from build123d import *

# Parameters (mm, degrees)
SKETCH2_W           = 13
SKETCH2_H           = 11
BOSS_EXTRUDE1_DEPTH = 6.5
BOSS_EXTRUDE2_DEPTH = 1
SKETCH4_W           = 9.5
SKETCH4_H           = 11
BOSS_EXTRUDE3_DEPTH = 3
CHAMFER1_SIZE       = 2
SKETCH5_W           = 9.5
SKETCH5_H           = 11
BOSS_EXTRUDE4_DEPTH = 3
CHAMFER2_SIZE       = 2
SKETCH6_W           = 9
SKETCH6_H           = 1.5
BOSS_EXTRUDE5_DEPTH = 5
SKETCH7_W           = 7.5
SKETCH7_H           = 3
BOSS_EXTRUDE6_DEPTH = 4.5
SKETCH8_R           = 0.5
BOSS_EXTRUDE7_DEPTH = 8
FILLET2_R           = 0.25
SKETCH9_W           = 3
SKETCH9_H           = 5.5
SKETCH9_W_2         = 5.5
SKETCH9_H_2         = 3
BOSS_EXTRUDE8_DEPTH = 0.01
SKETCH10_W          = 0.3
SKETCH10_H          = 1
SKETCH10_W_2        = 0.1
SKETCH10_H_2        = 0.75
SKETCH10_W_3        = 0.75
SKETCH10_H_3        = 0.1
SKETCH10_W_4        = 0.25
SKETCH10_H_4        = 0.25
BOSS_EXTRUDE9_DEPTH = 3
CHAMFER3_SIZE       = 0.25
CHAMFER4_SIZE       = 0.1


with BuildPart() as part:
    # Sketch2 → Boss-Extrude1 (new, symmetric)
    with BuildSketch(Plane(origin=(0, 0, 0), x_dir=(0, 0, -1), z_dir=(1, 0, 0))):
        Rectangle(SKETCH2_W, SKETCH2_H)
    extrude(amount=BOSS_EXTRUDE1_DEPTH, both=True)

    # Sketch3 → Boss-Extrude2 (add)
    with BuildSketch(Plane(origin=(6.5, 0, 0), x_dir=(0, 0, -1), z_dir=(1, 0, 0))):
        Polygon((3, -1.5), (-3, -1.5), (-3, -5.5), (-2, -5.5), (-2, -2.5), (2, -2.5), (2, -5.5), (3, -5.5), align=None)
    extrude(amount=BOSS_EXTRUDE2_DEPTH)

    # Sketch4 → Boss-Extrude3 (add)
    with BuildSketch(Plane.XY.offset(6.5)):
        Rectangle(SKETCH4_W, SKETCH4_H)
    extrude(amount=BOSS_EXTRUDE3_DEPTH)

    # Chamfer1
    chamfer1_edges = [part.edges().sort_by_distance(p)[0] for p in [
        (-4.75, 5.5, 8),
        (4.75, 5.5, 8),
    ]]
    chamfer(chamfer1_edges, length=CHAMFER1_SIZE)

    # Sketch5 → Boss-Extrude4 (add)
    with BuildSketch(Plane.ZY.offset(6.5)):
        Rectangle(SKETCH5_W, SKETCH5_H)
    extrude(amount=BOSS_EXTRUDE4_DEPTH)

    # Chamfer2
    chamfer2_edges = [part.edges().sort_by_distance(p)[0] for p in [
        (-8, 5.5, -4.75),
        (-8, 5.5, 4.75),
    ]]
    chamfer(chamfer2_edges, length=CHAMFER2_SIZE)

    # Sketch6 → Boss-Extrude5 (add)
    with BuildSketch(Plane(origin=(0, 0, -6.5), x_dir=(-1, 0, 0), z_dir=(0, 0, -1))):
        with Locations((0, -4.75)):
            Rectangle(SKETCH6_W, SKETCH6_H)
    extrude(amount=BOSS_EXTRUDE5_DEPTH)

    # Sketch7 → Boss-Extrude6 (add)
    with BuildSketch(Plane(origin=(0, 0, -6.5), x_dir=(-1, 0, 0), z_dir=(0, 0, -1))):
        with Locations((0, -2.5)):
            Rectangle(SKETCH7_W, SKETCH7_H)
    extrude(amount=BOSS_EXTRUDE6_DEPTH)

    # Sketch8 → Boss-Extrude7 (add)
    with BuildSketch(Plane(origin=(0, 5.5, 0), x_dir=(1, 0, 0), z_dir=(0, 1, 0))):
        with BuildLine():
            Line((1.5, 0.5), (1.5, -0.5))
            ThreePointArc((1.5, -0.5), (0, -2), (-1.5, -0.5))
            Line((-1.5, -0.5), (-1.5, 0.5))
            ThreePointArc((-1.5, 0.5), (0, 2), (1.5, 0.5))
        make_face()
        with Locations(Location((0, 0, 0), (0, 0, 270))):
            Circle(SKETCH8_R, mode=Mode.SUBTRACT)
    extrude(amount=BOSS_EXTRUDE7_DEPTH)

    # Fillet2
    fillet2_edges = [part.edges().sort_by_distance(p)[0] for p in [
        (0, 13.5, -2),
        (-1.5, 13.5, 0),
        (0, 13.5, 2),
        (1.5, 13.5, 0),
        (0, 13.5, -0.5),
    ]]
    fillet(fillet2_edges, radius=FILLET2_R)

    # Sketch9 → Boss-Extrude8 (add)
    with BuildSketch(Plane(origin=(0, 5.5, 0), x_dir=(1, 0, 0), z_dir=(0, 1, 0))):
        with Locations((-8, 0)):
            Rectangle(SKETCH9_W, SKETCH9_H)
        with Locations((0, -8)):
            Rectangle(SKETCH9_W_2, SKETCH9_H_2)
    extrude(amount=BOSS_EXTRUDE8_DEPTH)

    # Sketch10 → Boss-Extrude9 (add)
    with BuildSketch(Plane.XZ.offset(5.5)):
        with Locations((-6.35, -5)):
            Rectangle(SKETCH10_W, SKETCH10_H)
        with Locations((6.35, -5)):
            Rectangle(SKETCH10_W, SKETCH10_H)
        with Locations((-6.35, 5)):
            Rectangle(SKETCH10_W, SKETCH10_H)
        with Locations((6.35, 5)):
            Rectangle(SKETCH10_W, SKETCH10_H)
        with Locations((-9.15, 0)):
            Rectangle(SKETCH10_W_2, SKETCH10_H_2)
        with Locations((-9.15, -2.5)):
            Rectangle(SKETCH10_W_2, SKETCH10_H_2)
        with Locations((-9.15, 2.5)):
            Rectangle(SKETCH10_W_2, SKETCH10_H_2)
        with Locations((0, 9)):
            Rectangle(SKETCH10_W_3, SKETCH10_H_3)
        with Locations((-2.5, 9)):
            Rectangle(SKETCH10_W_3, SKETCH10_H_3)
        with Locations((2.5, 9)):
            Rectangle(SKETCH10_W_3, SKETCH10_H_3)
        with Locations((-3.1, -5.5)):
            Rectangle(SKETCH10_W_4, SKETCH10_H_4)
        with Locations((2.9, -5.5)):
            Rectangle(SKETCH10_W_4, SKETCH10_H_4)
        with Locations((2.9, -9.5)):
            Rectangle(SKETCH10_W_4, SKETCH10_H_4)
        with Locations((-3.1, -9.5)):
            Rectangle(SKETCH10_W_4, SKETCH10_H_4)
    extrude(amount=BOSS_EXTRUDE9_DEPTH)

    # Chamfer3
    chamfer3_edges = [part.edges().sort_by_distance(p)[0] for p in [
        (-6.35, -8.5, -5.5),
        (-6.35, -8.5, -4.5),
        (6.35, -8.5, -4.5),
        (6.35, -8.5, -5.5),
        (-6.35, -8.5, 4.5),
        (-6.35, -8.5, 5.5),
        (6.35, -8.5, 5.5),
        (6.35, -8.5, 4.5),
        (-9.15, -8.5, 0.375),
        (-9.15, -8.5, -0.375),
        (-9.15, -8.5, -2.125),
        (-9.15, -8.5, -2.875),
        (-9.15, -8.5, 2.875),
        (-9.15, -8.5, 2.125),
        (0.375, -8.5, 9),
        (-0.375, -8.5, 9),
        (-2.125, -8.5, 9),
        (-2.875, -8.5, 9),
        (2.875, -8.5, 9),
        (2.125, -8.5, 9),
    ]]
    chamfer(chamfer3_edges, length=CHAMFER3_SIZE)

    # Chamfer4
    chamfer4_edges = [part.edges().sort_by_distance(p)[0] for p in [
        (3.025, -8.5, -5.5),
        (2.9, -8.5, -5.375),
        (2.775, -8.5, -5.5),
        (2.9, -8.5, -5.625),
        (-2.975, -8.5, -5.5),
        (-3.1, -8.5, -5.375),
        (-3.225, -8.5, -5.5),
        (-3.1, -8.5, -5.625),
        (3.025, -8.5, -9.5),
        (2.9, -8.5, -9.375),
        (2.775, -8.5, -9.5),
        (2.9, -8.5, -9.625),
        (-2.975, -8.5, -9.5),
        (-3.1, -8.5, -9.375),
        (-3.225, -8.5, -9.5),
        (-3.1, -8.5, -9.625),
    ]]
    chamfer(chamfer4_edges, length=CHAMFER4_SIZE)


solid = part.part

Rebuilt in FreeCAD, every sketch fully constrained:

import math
import FreeCAD as App
import Part
import Sketcher

V = App.Vector


def edges_at(feature, points):
    """Names of the edges that pass closest to the given points."""
    edges = feature.Shape.Edges
    near = lambda p: min(range(len(edges)), key=lambda i: edges[i].distToShape(Part.Vertex(*p))[0])
    return sorted({f"Edge{near(p) + 1}" for p in points})


def add_polygon(sketch, points):
    """Adds a closed chain of lines whose ends are joined by coincident constraints."""
    first, n = sketch.GeometryCount, len(points)
    for a, b in zip(points, points[1:] + points[:1]):
        sketch.addGeometry(Part.LineSegment(App.Vector(*a, 0), App.Vector(*b, 0)), False)
    for i in range(n):
        sketch.addConstraint(Sketcher.Constraint("Coincident", first + i, 2, first + (i + 1) % n, 1))

doc = App.newDocument("Part")
body = doc.addObject("PartDesign::Body", "Body")

# Sketch on YZ plane
sketch1 = body.newObject("Sketcher::SketchObject", "Sketch")
sketch1.AttachmentSupport = (doc.getObject("YZ_Plane"), [""])
sketch1.MapMode = "FlatFace"
add_polygon(sketch1, [(5.5, 6.5), (-5.5, 6.5), (-5.5, -6.5), (5.5, -6.5)])  # lines 0-3
sketch1.addConstraint(Sketcher.Constraint("Horizontal", 0))
sketch1.addConstraint(Sketcher.Constraint("Vertical", 1))
sketch1.addConstraint(Sketcher.Constraint("Horizontal", 2))
sketch1.addConstraint(Sketcher.Constraint("Vertical", 3))
sketch1.addConstraint(Sketcher.Constraint("Symmetric", 0, 2, 2, 2, -1, 1))
sketch1.addConstraint(Sketcher.Constraint("DistanceX", 0, 2, 0, 1, 11.0))
sketch1.addConstraint(Sketcher.Constraint("DistanceY", 1, 2, 1, 1, 13.0))
pad1 = body.newObject("PartDesign::Pad", "Pad")
pad1.Profile = sketch1
pad1.Length = 13
pad1.Midplane = True

# Sketch on YZ plane
sketch2 = body.newObject("Sketcher::SketchObject", "Sketch001")
sketch2.AttachmentSupport = (doc.getObject("YZ_Plane"), [""])
sketch2.MapMode = "FlatFace"
sketch2.AttachmentOffset = App.Placement(V(0, 0, 6.5), App.Rotation())
add_polygon(sketch2, [(-1.5, -3), (-1.5, 3), (-5.5, 3), (-5.5, 2), (-2.5, 2), (-2.5, -2), (-5.5, -2), (-5.5, -3)])  # lines 0-7
sketch2.addConstraint(Sketcher.Constraint("Vertical", 0))
sketch2.addConstraint(Sketcher.Constraint("Horizontal", 1))
sketch2.addConstraint(Sketcher.Constraint("Vertical", 2))
sketch2.addConstraint(Sketcher.Constraint("Horizontal", 3))
sketch2.addConstraint(Sketcher.Constraint("Vertical", 4))
sketch2.addConstraint(Sketcher.Constraint("Horizontal", 5))
sketch2.addConstraint(Sketcher.Constraint("Vertical", 6))
sketch2.addConstraint(Sketcher.Constraint("Horizontal", 7))
sketch2.addConstraint(Sketcher.Constraint("Symmetric", 2, 2, 5, 2, -1))
sketch2.addConstraint(Sketcher.Constraint("Equal", 7, 4))
sketch2.addConstraint(Sketcher.Constraint("Equal", 2, 6))
sketch2.addConstraint(Sketcher.Constraint("DistanceX", 1, 2, 1, 1, 4.0))
sketch2.addConstraint(Sketcher.Constraint("DistanceX", 3, 1, 3, 2, 3.0))
sketch2.addConstraint(Sketcher.Constraint("DistanceY", 0, 1, 0, 2, 6.0))
sketch2.addConstraint(Sketcher.Constraint("DistanceX", 0, 2, -1, 1, 1.5))
pad2 = body.newObject("PartDesign::Pad", "Pad001")
pad2.Profile = sketch2
pad2.Length = 1

# Sketch on XY plane
sketch3 = body.newObject("Sketcher::SketchObject", "Sketch002")
sketch3.AttachmentSupport = (doc.getObject("XY_Plane"), [""])
sketch3.MapMode = "FlatFace"
sketch3.AttachmentOffset = App.Placement(V(0, 0, 6.5), App.Rotation())
add_polygon(sketch3, [(-4.75, 5.5), (-4.75, -5.5), (4.75, -5.5), (4.75, 5.5)])  # lines 0-3
sketch3.addConstraint(Sketcher.Constraint("Vertical", 0))
sketch3.addConstraint(Sketcher.Constraint("Horizontal", 1))
sketch3.addConstraint(Sketcher.Constraint("Vertical", 2))
sketch3.addConstraint(Sketcher.Constraint("Horizontal", 3))
sketch3.addConstraint(Sketcher.Constraint("Symmetric", 0, 2, 2, 2, -1, 1))
sketch3.addConstraint(Sketcher.Constraint("DistanceY", 0, 2, 0, 1, 11.0))
sketch3.addConstraint(Sketcher.Constraint("DistanceX", 1, 1, 1, 2, 9.5))
pad3 = body.newObject("PartDesign::Pad", "Pad002")
pad3.Profile = sketch3
pad3.Length = 3
doc.recompute()

chamfer = body.newObject("PartDesign::Chamfer", "Chamfer")
chamfer.Base = (pad3, edges_at(pad3, [(-4.75, 5.5, 8), (4.75, 5.5, 8)]))
chamfer.Size = 2

# Sketch on YZ plane
sketch4 = body.newObject("Sketcher::SketchObject", "Sketch003")
sketch4.AttachmentSupport = (doc.getObject("YZ_Plane"), [""])
sketch4.MapMode = "FlatFace"
sketch4.AttachmentOffset = App.Placement(V(0, 0, -6.5), App.Rotation())
add_polygon(sketch4, [(5.5, -4.75), (-5.5, -4.75), (-5.5, 4.75), (5.5, 4.75)])  # lines 0-3
sketch4.addConstraint(Sketcher.Constraint("Horizontal", 0))
sketch4.addConstraint(Sketcher.Constraint("Vertical", 1))
sketch4.addConstraint(Sketcher.Constraint("Horizontal", 2))
sketch4.addConstraint(Sketcher.Constraint("Vertical", 3))
sketch4.addConstraint(Sketcher.Constraint("Symmetric", 0, 2, 2, 2, -1, 1))
sketch4.addConstraint(Sketcher.Constraint("DistanceX", 0, 2, 0, 1, 11.0))
sketch4.addConstraint(Sketcher.Constraint("DistanceY", 1, 1, 1, 2, 9.5))
pad4 = body.newObject("PartDesign::Pad", "Pad003")
pad4.Profile = sketch4
pad4.Length = 3
pad4.Reversed = True
doc.recompute()

chamfer2 = body.newObject("PartDesign::Chamfer", "Chamfer001")
chamfer2.Base = (pad4, edges_at(pad4, [(-8, 5.5, -4.75), (-8, 5.5, 4.75)]))
chamfer2.Size = 2

# Sketch on XY plane
sketch5 = body.newObject("Sketcher::SketchObject", "Sketch004")
sketch5.AttachmentSupport = (doc.getObject("XY_Plane"), [""])
sketch5.MapMode = "FlatFace"
sketch5.AttachmentOffset = App.Placement(V(0, 0, -6.5), App.Rotation())
add_polygon(sketch5, [(4.5, -4), (4.5, -5.5), (-4.5, -5.5), (-4.5, -4)])  # lines 0-3
sketch5.addConstraint(Sketcher.Constraint("Vertical", 0))
sketch5.addConstraint(Sketcher.Constraint("Horizontal", 1))
sketch5.addConstraint(Sketcher.Constraint("Vertical", 2))
sketch5.addConstraint(Sketcher.Constraint("Horizontal", 3))
sketch5.addConstraint(Sketcher.Constraint("DistanceX", 1, 2, 1, 1, 9.0))
sketch5.addConstraint(Sketcher.Constraint("DistanceY", 0, 2, 0, 1, 1.5))
sketch5.addConstraint(Sketcher.Constraint("DistanceY", 2, 2, -1, 1, 4.0))
sketch5.addConstraint(Sketcher.Constraint("DistanceX", -1, 1, 0, 2, 4.5))
pad5 = body.newObject("PartDesign::Pad", "Pad004")
pad5.Profile = sketch5
pad5.Length = 5
pad5.Reversed = True

# Sketch on XY plane
sketch6 = body.newObject("Sketcher::SketchObject", "Sketch005")
sketch6.AttachmentSupport = (doc.getObject("XY_Plane"), [""])
sketch6.MapMode = "FlatFace"
sketch6.AttachmentOffset = App.Placement(V(0, 0, -6.5), App.Rotation())
add_polygon(sketch6, [(3.75, -1), (3.75, -4), (-3.75, -4), (-3.75, -1)])  # lines 0-3
sketch6.addConstraint(Sketcher.Constraint("Vertical", 0))
sketch6.addConstraint(Sketcher.Constraint("Horizontal", 1))
sketch6.addConstraint(Sketcher.Constraint("Vertical", 2))
sketch6.addConstraint(Sketcher.Constraint("Horizontal", 3))
sketch6.addConstraint(Sketcher.Constraint("DistanceY", 0, 2, 0, 1, 3.0))
sketch6.addConstraint(Sketcher.Constraint("DistanceX", 1, 2, 1, 1, 7.5))
sketch6.addConstraint(Sketcher.Constraint("DistanceY", 0, 2, -1, 1, 4.0))
sketch6.addConstraint(Sketcher.Constraint("DistanceX", -1, 1, 0, 2, 3.75))
pad6 = body.newObject("PartDesign::Pad", "Pad005")
pad6.Profile = sketch6
pad6.Length = 4.5
pad6.Reversed = True

# Sketch on XZ plane
sketch7 = body.newObject("Sketcher::SketchObject", "Sketch006")
sketch7.AttachmentSupport = (doc.getObject("XZ_Plane"), [""])
sketch7.MapMode = "FlatFace"
sketch7.AttachmentOffset = App.Placement(V(0, 0, -5.5), App.Rotation())
sketch7.addGeometry(Part.LineSegment(V(1.5, 0.5, 0), V(1.5, -0.5, 0)), False)
sketch7.addGeometry(Part.ArcOfCircle(Part.Circle(V(0, -0.5, 0), V(0, 0, 1), 1.5), math.radians(180), math.radians(360)), False)
sketch7.addGeometry(Part.LineSegment(V(-1.5, -0.5, 0), V(-1.5, 0.5, 0)), False)
sketch7.addGeometry(Part.ArcOfCircle(Part.Circle(V(0, 0.5, 0), V(0, 0, 1), 1.5), math.radians(0), math.radians(180)), False)
sketch7.addGeometry(Part.Circle(V(0, 0, 0), V(0, 0, 1), 0.5), False)
sketch7.addConstraint(Sketcher.Constraint("Tangent", 0, 2, 1, 2))
sketch7.addConstraint(Sketcher.Constraint("Tangent", 1, 1, 2, 1))
sketch7.addConstraint(Sketcher.Constraint("Tangent", 2, 2, 3, 2))
sketch7.addConstraint(Sketcher.Constraint("Tangent", 3, 1, 0, 1))
sketch7.addConstraint(Sketcher.Constraint("Vertical", 0))
sketch7.addConstraint(Sketcher.Constraint("Vertical", 2))
sketch7.addConstraint(Sketcher.Constraint("Coincident", 4, 3, -1, 1))
sketch7.addConstraint(Sketcher.Constraint("Symmetric", 1, 3, 3, 3, -1, 1))
sketch7.addConstraint(Sketcher.Constraint("Diameter", 4, 1.0))
sketch7.addConstraint(Sketcher.Constraint("Radius", 1, 1.5))
sketch7.addConstraint(Sketcher.Constraint("DistanceY", 0, 2, 0, 1, 1.0))
pad7 = body.newObject("PartDesign::Pad", "Pad006")
pad7.Profile = sketch7
pad7.Length = 8
pad7.Reversed = True
doc.recompute()

fillet = body.newObject("PartDesign::Fillet", "Fillet")
fillet.Base = (pad7, edges_at(pad7, [
    (0, 13.5, -2),
    (-1.5, 13.5, 0),
    (0, 13.5, 2),
    (1.5, 13.5, 0),
    (0, 13.5, -0.5),
]))
fillet.Radius = 0.25

# Sketch on XZ plane
sketch8 = body.newObject("Sketcher::SketchObject", "Sketch007")
sketch8.AttachmentSupport = (doc.getObject("XZ_Plane"), [""])
sketch8.MapMode = "FlatFace"
sketch8.AttachmentOffset = App.Placement(V(0, 0, -5.5), App.Rotation())
add_polygon(sketch8, [(-9.5, -2.75), (-9.5, 2.75), (-6.5, 2.75), (-6.5, -2.75)])  # lines 0-3
add_polygon(sketch8, [(-2.75, 6.5), (-2.75, 9.5), (2.75, 9.5), (2.75, 6.5)])  # lines 4-7
sketch8.addConstraint(Sketcher.Constraint("Vertical", 0))
sketch8.addConstraint(Sketcher.Constraint("Horizontal", 1))
sketch8.addConstraint(Sketcher.Constraint("Vertical", 2))
sketch8.addConstraint(Sketcher.Constraint("Horizontal", 3))
sketch8.addConstraint(Sketcher.Constraint("Vertical", 4))
sketch8.addConstraint(Sketcher.Constraint("Horizontal", 5))
sketch8.addConstraint(Sketcher.Constraint("Vertical", 6))
sketch8.addConstraint(Sketcher.Constraint("Horizontal", 7))
sketch8.addConstraint(Sketcher.Constraint("Equal", 7, 0))
sketch8.addConstraint(Sketcher.Constraint("Equal", 3, 4))
sketch8.addConstraint(Sketcher.Constraint("DistanceX", 1, 1, 1, 2, 3.0))
sketch8.addConstraint(Sketcher.Constraint("DistanceX", 5, 1, 5, 2, 5.5))
sketch8.addConstraint(Sketcher.Constraint("DistanceX", 0, 2, -1, 1, 9.5))
sketch8.addConstraint(Sketcher.Constraint("DistanceY", -1, 1, 4, 2, 9.5))
sketch8.addConstraint(Sketcher.Constraint("DistanceY", -1, 1, 0, 2, 2.75))
sketch8.addConstraint(Sketcher.Constraint("DistanceX", 4, 2, -1, 1, 2.75))
pad8 = body.newObject("PartDesign::Pad", "Pad007")
pad8.Profile = sketch8
pad8.Length = 0.01
pad8.Reversed = True

# Sketch on XZ plane
sketch9 = body.newObject("Sketcher::SketchObject", "Sketch008")
sketch9.AttachmentSupport = (doc.getObject("XZ_Plane"), [""])
sketch9.MapMode = "FlatFace"
sketch9.AttachmentOffset = App.Placement(V(0, 0, 5.5), App.Rotation())
add_polygon(sketch9, [(-6.5, -4.5), (-6.5, -5.5), (-6.2, -5.5), (-6.2, -4.5)])  # lines 0-3
add_polygon(sketch9, [(6.2, -4.5), (6.2, -5.5), (6.5, -5.5), (6.5, -4.5)])  # lines 4-7
add_polygon(sketch9, [(-6.5, 5.5), (-6.5, 4.5), (-6.2, 4.5), (-6.2, 5.5)])  # lines 8-11
add_polygon(sketch9, [(6.2, 5.5), (6.2, 4.5), (6.5, 4.5), (6.5, 5.5)])  # lines 12-15
add_polygon(sketch9, [(-9.2, 0.375), (-9.2, -0.375), (-9.1, -0.375), (-9.1, 0.375)])  # lines 16-19
add_polygon(sketch9, [(-9.2, -2.125), (-9.2, -2.875), (-9.1, -2.875), (-9.1, -2.125)])  # lines 20-23
add_polygon(sketch9, [(-9.2, 2.875), (-9.2, 2.125), (-9.1, 2.125), (-9.1, 2.875)])  # lines 24-27
add_polygon(sketch9, [(-0.375, 9.05), (-0.375, 8.95), (0.375, 8.95), (0.375, 9.05)])  # lines 28-31
add_polygon(sketch9, [(-2.875, 9.05), (-2.875, 8.95), (-2.125, 8.95), (-2.125, 9.05)])  # lines 32-35
add_polygon(sketch9, [(2.125, 9.05), (2.125, 8.95), (2.875, 8.95), (2.875, 9.05)])  # lines 36-39
add_polygon(sketch9, [(-3.225, -5.375), (-3.225, -5.625), (-2.975, -5.625), (-2.975, -5.375)])  # lines 40-43
add_polygon(sketch9, [(2.775, -5.375), (2.775, -5.625), (3.025, -5.625), (3.025, -5.375)])  # lines 44-47
add_polygon(sketch9, [(2.775, -9.375), (2.775, -9.625), (3.025, -9.625), (3.025, -9.375)])  # lines 48-51
add_polygon(sketch9, [(-3.225, -9.375), (-3.225, -9.625), (-2.975, -9.625), (-2.975, -9.375)])  # lines 52-55
sketch9.addConstraint(Sketcher.Constraint("Vertical", 0))
sketch9.addConstraint(Sketcher.Constraint("Horizontal", 1))
sketch9.addConstraint(Sketcher.Constraint("Vertical", 2))
sketch9.addConstraint(Sketcher.Constraint("Horizontal", 3))
sketch9.addConstraint(Sketcher.Constraint("Vertical", 4))
sketch9.addConstraint(Sketcher.Constraint("Horizontal", 5))
sketch9.addConstraint(Sketcher.Constraint("Vertical", 6))
sketch9.addConstraint(Sketcher.Constraint("Horizontal", 7))
sketch9.addConstraint(Sketcher.Constraint("Vertical", 8))
sketch9.addConstraint(Sketcher.Constraint("Horizontal", 9))
sketch9.addConstraint(Sketcher.Constraint("Vertical", 10))
sketch9.addConstraint(Sketcher.Constraint("Horizontal", 11))
sketch9.addConstraint(Sketcher.Constraint("Vertical", 12))
sketch9.addConstraint(Sketcher.Constraint("Horizontal", 13))
sketch9.addConstraint(Sketcher.Constraint("Vertical", 14))
sketch9.addConstraint(Sketcher.Constraint("Horizontal", 15))
sketch9.addConstraint(Sketcher.Constraint("Vertical", 16))
sketch9.addConstraint(Sketcher.Constraint("Horizontal", 17))
sketch9.addConstraint(Sketcher.Constraint("Vertical", 18))
sketch9.addConstraint(Sketcher.Constraint("Horizontal", 19))
sketch9.addConstraint(Sketcher.Constraint("Vertical", 20))
sketch9.addConstraint(Sketcher.Constraint("Horizontal", 21))
sketch9.addConstraint(Sketcher.Constraint("Vertical", 22))
sketch9.addConstraint(Sketcher.Constraint("Horizontal", 23))
sketch9.addConstraint(Sketcher.Constraint("Vertical", 24))
sketch9.addConstraint(Sketcher.Constraint("Horizontal", 25))
sketch9.addConstraint(Sketcher.Constraint("Vertical", 26))
sketch9.addConstraint(Sketcher.Constraint("Horizontal", 27))
sketch9.addConstraint(Sketcher.Constraint("Vertical", 28))
sketch9.addConstraint(Sketcher.Constraint("Horizontal", 29))
sketch9.addConstraint(Sketcher.Constraint("Vertical", 30))
sketch9.addConstraint(Sketcher.Constraint("Horizontal", 31))
sketch9.addConstraint(Sketcher.Constraint("Vertical", 32))
sketch9.addConstraint(Sketcher.Constraint("Horizontal", 33))
sketch9.addConstraint(Sketcher.Constraint("Vertical", 34))
sketch9.addConstraint(Sketcher.Constraint("Horizontal", 35))
sketch9.addConstraint(Sketcher.Constraint("Vertical", 36))
sketch9.addConstraint(Sketcher.Constraint("Horizontal", 37))
sketch9.addConstraint(Sketcher.Constraint("Vertical", 38))
sketch9.addConstraint(Sketcher.Constraint("Horizontal", 39))
sketch9.addConstraint(Sketcher.Constraint("Vertical", 40))
sketch9.addConstraint(Sketcher.Constraint("Horizontal", 41))
sketch9.addConstraint(Sketcher.Constraint("Vertical", 42))
sketch9.addConstraint(Sketcher.Constraint("Horizontal", 43))
sketch9.addConstraint(Sketcher.Constraint("Vertical", 44))
sketch9.addConstraint(Sketcher.Constraint("Horizontal", 45))
sketch9.addConstraint(Sketcher.Constraint("Vertical", 46))
sketch9.addConstraint(Sketcher.Constraint("Horizontal", 47))
sketch9.addConstraint(Sketcher.Constraint("Vertical", 48))
sketch9.addConstraint(Sketcher.Constraint("Horizontal", 49))
sketch9.addConstraint(Sketcher.Constraint("Vertical", 50))
sketch9.addConstraint(Sketcher.Constraint("Horizontal", 51))
sketch9.addConstraint(Sketcher.Constraint("Vertical", 52))
sketch9.addConstraint(Sketcher.Constraint("Horizontal", 53))
sketch9.addConstraint(Sketcher.Constraint("Vertical", 54))
sketch9.addConstraint(Sketcher.Constraint("Horizontal", 55))
sketch9.addConstraint(Sketcher.Constraint("Symmetric", 6, 2, 8, 2, -1, 1))
sketch9.addConstraint(Sketcher.Constraint("Symmetric", 4, 2, 10, 2, -1, 1))
sketch9.addConstraint(Sketcher.Constraint("Symmetric", 2, 2, 12, 2, -1, 1))
sketch9.addConstraint(Sketcher.Constraint("Symmetric", 0, 2, 14, 2, -1, 1))
sketch9.addConstraint(Sketcher.Constraint("Symmetric", 1, 2, 4, 2, -2))
sketch9.addConstraint(Sketcher.Constraint("Symmetric", 3, 2, 6, 2, -2))
sketch9.addConstraint(Sketcher.Constraint("Symmetric", 33, 2, 36, 2, -2))
sketch9.addConstraint(Sketcher.Constraint("Symmetric", 35, 2, 38, 2, -2))
sketch9.addConstraint(Sketcher.Constraint("Symmetric", 23, 2, 24, 2, -1))
sketch9.addConstraint(Sketcher.Constraint("Symmetric", 21, 2, 26, 2, -1))
sketch9.addConstraint(Sketcher.Constraint("Horizontal", 29, 2, 32, 2))
sketch9.addConstraint(Sketcher.Constraint("Horizontal", 31, 2, 34, 2))
sketch9.addConstraint(Sketcher.Constraint("Horizontal", 41, 2, 44, 2))
sketch9.addConstraint(Sketcher.Constraint("Horizontal", 43, 2, 46, 2))
sketch9.addConstraint(Sketcher.Constraint("Horizontal", 49, 2, 52, 2))
sketch9.addConstraint(Sketcher.Constraint("Horizontal", 51, 2, 54, 2))
sketch9.addConstraint(Sketcher.Constraint("Vertical", 19, 2, 20, 2))
sketch9.addConstraint(Sketcher.Constraint("Vertical", 18, 2, 21, 2))
sketch9.addConstraint(Sketcher.Constraint("Vertical", 47, 2, 48, 2))
sketch9.addConstraint(Sketcher.Constraint("Vertical", 46, 2, 49, 2))
sketch9.addConstraint(Sketcher.Constraint("Vertical", 43, 2, 52, 2))
sketch9.addConstraint(Sketcher.Constraint("Vertical", 42, 2, 53, 2))
sketch9.addConstraint(Sketcher.Constraint("Equal", 31, 33))
sketch9.addConstraint(Sketcher.Constraint("Equal", 43, 45))
sketch9.addConstraint(Sketcher.Constraint("Equal", 39, 16))
sketch9.addConstraint(Sketcher.Constraint("Equal", 18, 20))
sketch9.addConstraint(Sketcher.Constraint("Equal", 27, 28))
sketch9.addConstraint(Sketcher.Constraint("Equal", 55, 40))
sketch9.addConstraint(Sketcher.Constraint("Equal", 46, 48))
sketch9.addConstraint(Sketcher.Constraint("DistanceY", 0, 2, 0, 1, 1.0))
sketch9.addConstraint(Sketcher.Constraint("DistanceX", 1, 1, 1, 2, 0.3))
sketch9.addConstraint(Sketcher.Constraint("DistanceX", 17, 1, 17, 2, 0.1))
sketch9.addConstraint(Sketcher.Constraint("DistanceX", 0, 2, 5, 2, 13.0))
sketch9.addConstraint(Sketcher.Constraint("DistanceY", 3, 2, 8, 2, 9.0))
sketch9.addConstraint(Sketcher.Constraint("DistanceX", 16, 2, 2, 2, 3.0))
sketch9.addConstraint(Sketcher.Constraint("DistanceY", 48, 2, 44, 2, 4.0))
sketch9.addConstraint(Sketcher.Constraint("DistanceX", 29, 1, 29, 2, 0.75))
sketch9.addConstraint(Sketcher.Constraint("DistanceX", 41, 1, 41, 2, 0.25))
sketch9.addConstraint(Sketcher.Constraint("DistanceY", 20, 2, 16, 2, 2.5))
sketch9.addConstraint(Sketcher.Constraint("DistanceY", 16, 2, 24, 2, 2.5))
sketch9.addConstraint(Sketcher.Constraint("DistanceX", 32, 2, 28, 2, 2.5))
sketch9.addConstraint(Sketcher.Constraint("DistanceX", 28, 2, 36, 2, 2.5))
sketch9.addConstraint(Sketcher.Constraint("DistanceY", -1, 1, 28, 2, 8.95))
sketch9.addConstraint(Sketcher.Constraint("DistanceY", 40, 2, 21, 2, 2.75))
sketch9.addConstraint(Sketcher.Constraint("DistanceX", 41, 2, 44, 2, 5.75))
sketch9.addConstraint(Sketcher.Constraint("DistanceX", 40, 2, -1, 1, 3.225))
pad9 = body.newObject("PartDesign::Pad", "Pad008")
pad9.Profile = sketch9
pad9.Length = 3
doc.recompute()

chamfer3 = body.newObject("PartDesign::Chamfer", "Chamfer002")
chamfer3.Base = (pad9, edges_at(pad9, [
    (-6.35, -8.5, -5.5),
    (-6.35, -8.5, -4.5),
    (6.35, -8.5, -4.5),
    (6.35, -8.5, -5.5),
    (-6.35, -8.5, 4.5),
    (-6.35, -8.5, 5.5),
    (6.35, -8.5, 5.5),
    (6.35, -8.5, 4.5),
    (-9.15, -8.5, 0.375),
    (-9.15, -8.5, -0.375),
    (-9.15, -8.5, -2.125),
    (-9.15, -8.5, -2.875),
    (-9.15, -8.5, 2.875),
    (-9.15, -8.5, 2.125),
    (0.375, -8.5, 9),
    (-0.375, -8.5, 9),
    (-2.125, -8.5, 9),
    (-2.875, -8.5, 9),
    (2.875, -8.5, 9),
    (2.125, -8.5, 9),
]))
chamfer3.Size = 0.25
doc.recompute()

chamfer4 = body.newObject("PartDesign::Chamfer", "Chamfer003")
chamfer4.Base = (chamfer3, edges_at(chamfer3, [
    (3.025, -8.5, -5.5),
    (2.9, -8.5, -5.375),
    (2.775, -8.5, -5.5),
    (2.9, -8.5, -5.625),
    (-2.975, -8.5, -5.5),
    (-3.1, -8.5, -5.375),
    (-3.225, -8.5, -5.5),
    (-3.1, -8.5, -5.625),
    (3.025, -8.5, -9.5),
    (2.9, -8.5, -9.375),
    (2.775, -8.5, -9.5),
    (2.9, -8.5, -9.625),
    (-2.975, -8.5, -9.5),
    (-3.1, -8.5, -9.375),
    (-3.225, -8.5, -9.5),
    (-3.1, -8.5, -9.625),
]))
chamfer4.Size = 0.1

doc.recompute()
